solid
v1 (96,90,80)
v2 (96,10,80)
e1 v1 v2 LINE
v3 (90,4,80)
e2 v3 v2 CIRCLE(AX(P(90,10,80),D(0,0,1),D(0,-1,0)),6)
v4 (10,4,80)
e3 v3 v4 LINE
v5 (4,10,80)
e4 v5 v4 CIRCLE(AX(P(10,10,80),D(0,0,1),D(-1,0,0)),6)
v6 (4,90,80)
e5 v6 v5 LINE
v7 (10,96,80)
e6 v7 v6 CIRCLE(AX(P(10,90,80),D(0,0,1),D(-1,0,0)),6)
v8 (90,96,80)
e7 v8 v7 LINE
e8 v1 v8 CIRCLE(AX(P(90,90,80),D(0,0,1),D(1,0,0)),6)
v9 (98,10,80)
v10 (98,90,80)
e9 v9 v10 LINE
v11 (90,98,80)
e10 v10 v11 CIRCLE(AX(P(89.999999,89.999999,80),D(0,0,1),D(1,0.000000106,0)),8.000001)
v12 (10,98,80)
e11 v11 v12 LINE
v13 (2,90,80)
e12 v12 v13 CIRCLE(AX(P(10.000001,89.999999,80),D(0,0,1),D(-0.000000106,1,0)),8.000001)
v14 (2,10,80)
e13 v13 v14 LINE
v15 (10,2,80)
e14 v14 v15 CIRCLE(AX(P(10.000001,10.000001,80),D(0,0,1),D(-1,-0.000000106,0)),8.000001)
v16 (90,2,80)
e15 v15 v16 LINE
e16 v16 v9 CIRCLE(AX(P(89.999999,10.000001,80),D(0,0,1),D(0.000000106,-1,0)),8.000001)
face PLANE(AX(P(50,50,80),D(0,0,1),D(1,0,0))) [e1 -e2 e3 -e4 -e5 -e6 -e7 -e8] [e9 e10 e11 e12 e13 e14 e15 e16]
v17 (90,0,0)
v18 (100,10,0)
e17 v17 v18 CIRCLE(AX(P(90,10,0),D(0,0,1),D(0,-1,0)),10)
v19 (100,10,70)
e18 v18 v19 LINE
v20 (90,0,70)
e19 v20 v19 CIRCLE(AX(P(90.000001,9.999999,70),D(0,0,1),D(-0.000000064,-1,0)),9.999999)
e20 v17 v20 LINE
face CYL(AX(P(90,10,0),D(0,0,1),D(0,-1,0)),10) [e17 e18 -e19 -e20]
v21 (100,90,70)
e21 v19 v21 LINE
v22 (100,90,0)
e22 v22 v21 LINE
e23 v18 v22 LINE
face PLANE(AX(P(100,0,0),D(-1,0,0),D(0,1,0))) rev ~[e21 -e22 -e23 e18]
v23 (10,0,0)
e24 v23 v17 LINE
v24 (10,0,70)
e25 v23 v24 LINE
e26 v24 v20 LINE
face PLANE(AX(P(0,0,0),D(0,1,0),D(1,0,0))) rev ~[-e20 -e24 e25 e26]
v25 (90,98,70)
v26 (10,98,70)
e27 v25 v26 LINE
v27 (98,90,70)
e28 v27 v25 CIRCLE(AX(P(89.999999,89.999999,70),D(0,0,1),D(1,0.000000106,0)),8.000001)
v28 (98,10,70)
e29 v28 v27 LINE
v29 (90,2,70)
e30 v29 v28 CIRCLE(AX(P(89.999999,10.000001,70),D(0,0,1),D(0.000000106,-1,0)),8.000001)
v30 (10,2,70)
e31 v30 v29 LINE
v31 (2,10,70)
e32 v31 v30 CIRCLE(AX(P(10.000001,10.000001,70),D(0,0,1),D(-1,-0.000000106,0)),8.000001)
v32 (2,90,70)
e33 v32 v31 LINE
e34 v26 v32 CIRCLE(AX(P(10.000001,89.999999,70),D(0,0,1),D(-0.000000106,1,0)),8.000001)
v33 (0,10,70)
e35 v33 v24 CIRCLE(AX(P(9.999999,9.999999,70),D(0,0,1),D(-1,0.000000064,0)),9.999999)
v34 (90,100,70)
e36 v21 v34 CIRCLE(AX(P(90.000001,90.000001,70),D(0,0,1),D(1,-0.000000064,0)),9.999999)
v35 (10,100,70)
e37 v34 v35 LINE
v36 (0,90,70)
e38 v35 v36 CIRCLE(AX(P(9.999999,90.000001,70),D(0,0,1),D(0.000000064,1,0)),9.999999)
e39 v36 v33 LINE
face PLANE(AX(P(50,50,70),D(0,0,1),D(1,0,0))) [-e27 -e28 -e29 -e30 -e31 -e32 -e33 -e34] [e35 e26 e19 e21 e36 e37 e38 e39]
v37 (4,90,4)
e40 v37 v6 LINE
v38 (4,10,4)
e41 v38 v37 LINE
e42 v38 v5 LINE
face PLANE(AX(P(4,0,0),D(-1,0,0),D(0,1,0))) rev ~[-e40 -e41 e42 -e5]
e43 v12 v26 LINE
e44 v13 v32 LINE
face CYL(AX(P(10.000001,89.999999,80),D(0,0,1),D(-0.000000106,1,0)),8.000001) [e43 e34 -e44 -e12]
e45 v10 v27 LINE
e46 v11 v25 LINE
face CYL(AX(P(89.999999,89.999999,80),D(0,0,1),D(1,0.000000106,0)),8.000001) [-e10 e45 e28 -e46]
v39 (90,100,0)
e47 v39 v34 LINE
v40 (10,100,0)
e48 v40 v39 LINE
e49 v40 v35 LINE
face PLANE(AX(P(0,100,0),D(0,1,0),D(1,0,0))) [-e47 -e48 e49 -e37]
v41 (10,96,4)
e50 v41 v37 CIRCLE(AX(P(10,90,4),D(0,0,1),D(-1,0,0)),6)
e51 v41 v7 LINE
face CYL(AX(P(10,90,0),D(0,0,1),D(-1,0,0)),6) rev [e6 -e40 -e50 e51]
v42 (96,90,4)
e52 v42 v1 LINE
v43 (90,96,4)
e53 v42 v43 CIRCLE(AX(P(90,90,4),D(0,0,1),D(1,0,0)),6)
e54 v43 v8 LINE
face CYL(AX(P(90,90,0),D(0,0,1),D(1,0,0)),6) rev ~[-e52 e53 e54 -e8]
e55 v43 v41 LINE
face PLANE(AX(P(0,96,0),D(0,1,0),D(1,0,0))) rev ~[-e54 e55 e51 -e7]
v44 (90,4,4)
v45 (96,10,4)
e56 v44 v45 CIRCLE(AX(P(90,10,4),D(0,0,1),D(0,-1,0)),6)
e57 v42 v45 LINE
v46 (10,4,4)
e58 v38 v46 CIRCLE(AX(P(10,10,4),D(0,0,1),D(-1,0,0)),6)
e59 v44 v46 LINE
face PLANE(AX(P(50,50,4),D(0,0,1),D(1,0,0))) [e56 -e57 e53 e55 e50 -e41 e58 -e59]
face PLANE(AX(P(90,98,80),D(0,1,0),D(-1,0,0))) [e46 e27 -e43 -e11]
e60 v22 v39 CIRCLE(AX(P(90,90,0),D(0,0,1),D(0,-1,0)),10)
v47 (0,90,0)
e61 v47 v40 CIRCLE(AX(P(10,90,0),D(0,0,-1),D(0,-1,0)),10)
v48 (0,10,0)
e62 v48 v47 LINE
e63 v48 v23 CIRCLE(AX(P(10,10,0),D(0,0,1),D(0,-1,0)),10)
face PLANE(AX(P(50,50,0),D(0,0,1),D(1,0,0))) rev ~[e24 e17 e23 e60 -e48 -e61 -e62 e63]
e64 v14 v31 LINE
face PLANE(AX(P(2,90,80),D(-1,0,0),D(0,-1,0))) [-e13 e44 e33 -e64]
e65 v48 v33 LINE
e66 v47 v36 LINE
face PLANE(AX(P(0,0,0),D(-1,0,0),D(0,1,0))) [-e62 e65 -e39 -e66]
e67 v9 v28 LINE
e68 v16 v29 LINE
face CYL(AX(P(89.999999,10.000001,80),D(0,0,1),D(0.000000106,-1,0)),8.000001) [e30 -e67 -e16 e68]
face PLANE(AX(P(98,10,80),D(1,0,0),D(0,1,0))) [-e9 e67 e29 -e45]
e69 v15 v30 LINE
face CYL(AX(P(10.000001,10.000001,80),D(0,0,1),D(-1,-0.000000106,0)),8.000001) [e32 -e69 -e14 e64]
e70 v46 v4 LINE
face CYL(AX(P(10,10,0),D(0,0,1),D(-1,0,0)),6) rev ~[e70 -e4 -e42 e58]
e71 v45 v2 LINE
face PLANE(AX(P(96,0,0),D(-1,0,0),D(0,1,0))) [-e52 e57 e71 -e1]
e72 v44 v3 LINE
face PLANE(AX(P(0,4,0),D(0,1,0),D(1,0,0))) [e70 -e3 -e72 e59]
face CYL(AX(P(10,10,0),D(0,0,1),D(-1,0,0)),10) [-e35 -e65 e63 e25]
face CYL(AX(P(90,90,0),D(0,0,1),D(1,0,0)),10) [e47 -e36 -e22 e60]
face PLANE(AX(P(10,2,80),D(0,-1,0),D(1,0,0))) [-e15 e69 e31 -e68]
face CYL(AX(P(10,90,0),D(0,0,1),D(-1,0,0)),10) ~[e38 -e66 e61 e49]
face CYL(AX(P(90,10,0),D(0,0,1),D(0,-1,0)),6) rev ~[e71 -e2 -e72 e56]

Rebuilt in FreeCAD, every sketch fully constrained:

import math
import FreeCAD as App
import Part
import Sketcher
from FreeCAD import Vector


def edges_at(feature, points):
    """Names of the edges that pass closest to the given points."""
    edges = feature.Shape.Edges
    near = lambda p: min(range(len(edges)), key=lambda i: edges[i].distToShape(Part.Vertex(*p))[0])
    return sorted({f"Edge{near(p) + 1}" for p in points})


def faces_at(feature, points):
    """Names of the faces that lie closest to the given points."""
    faces = feature.Shape.Faces
    near = lambda p: min(range(len(faces)), key=lambda i: faces[i].distToShape(Part.Vertex(*p))[0])
    return sorted({f"Face{near(p) + 1}" for p in points})


def add_polygon(sketch, points):
    """Adds a closed chain of lines whose ends are joined by coincident constraints."""
    first, n = sketch.GeometryCount, len(points)
    for a, b in zip(points, points[1:] + points[:1]):
        sketch.addGeometry(Part.LineSegment(App.Vector(*a, 0), App.Vector(*b, 0)), False)
    for i in range(n):
        sketch.addConstraint(Sketcher.Constraint("Coincident", first + i, 2, first + (i + 1) % n, 1))

doc = App.newDocument("Part")
params = doc.addObject("Spreadsheet::Sheet", "Params")
for row, (alias, value) in enumerate([
    ("sketch1_width", "100 mm"),
    ("pad1_length", "80 mm"),
    ("fillet_radius", "10 mm"),
    ("thickness_wall", "4 mm"),
    ("sketch2_radius", "9.999999 mm"),
    ("sketch2_radius2", "8.000001 mm"),
    ("sketch2_width", "80 mm"),
    ("pocket1_length", "10 mm"),
], start=1):
    params.set(f"A{row}", alias)
    params.set(f"B{row}", "=" + value)
    params.setAlias(f"B{row}", alias)

body = doc.addObject("PartDesign::Body", "Body")

sketch1 = doc.addObject("Sketcher::SketchObject", "Sketch")
body.addObject(sketch1)
sketch1.AttachmentSupport = (doc.XY_Plane, [""])
sketch1.MapMode = "FlatFace"
add_polygon(sketch1, [(0, 100), (0, 0), (100, 0), (100, 100)])
sketch1.addConstraint([
    Sketcher.Constraint("Vertical", 0),
    Sketcher.Constraint("Horizontal", 1),
    Sketcher.Constraint("Vertical", 2),
    Sketcher.Constraint("Horizontal", 3),
    Sketcher.Constraint("Coincident", 0, 2, -1, 1),
    Sketcher.Constraint("Equal", 3, 0),
    Sketcher.Constraint("DistanceX", 1, 1, 1, 2, 100.0),
])
sketch1.setExpression("Constraints[10]", "Params.sketch1_width")
pad1 = doc.addObject("PartDesign::Pad", "Pad")
body.addObject(pad1)
pad1.Profile = sketch1
pad1.setExpression("Length", "Params.pad1_length")
doc.recompute()

fillet = doc.addObject("PartDesign::Fillet", "Fillet")
body.addObject(fillet)
fillet.Base = (pad1, edges_at(pad1, [
    (0, 0, 40),
    (100, 0, 40),
    (100, 100, 40),
    (0, 100, 40),
]))
fillet.setExpression("Radius", "Params.fillet_radius")
doc.recompute()

thickness = doc.addObject("PartDesign::Thickness", "Thickness")
body.addObject(thickness)
thickness.Base = (fillet, faces_at(fillet, [(50, 50, 80)]))
thickness.setExpression("Value", "Params.thickness_wall")
thickness.Reversed = True
thickness.Join = "Intersection"

sketch2 = doc.addObject("Sketcher::SketchObject", "Sketch001")
body.addObject(sketch2)
sketch2.AttachmentSupport = (doc.XY_Plane, [""])
sketch2.MapMode = "FlatFace"
sketch2.AttachmentOffset = App.Placement(Vector(0, 0, 80), App.Rotation())
sketch2.addGeometry([
    Part.LineSegment(Vector(0, 90, 0), Vector(0, 10, 0)),
    Part.ArcOfCircle(Part.Circle(Vector(10, 10, 0), Vector(0, 0, 1), 10), math.radians(180), math.radians(270)),
    Part.LineSegment(Vector(10, 0, 0), Vector(90, 0, 0)),
    Part.ArcOfCircle(Part.Circle(Vector(90, 10, 0), Vector(0, 0, 1), 10), math.radians(-90), math.radians(0)),
    Part.LineSegment(Vector(100, 10, 0), Vector(100, 90, 0)),
    Part.ArcOfCircle(Part.Circle(Vector(90, 90, 0), Vector(0, 0, 1), 10), math.radians(0), math.radians(90)),
    Part.LineSegment(Vector(90, 100, 0), Vector(10, 100, 0)),
    Part.ArcOfCircle(Part.Circle(Vector(10, 90, 0), Vector(0, 0, 1), 10), math.radians(90), math.radians(180)),
    Part.LineSegment(Vector(2, 10, 0), Vector(2, 90, 0)),
    Part.ArcOfCircle(Part.Circle(Vector(10, 90, 0), Vector(0, 0, 1), 8), math.radians(90), math.radians(180)),
    Part.LineSegment(Vector(10, 98, 0), Vector(90, 98, 0)),
    Part.ArcOfCircle(Part.Circle(Vector(90, 90, 0), Vector(0, 0, 1), 8), math.radians(0), math.radians(90)),
    Part.LineSegment(Vector(98, 90, 0), Vector(98, 10, 0)),
    Part.ArcOfCircle(Part.Circle(Vector(90, 10, 0), Vector(0, 0, 1), 8), math.radians(-90), math.radians(0)),
    Part.LineSegment(Vector(90, 2, 0), Vector(10, 2, 0)),
    Part.ArcOfCircle(Part.Circle(Vector(10, 10, 0), Vector(0, 0, 1), 8), math.radians(-180), math.radians(-90)),
], False)
sketch2.addConstraint([
    Sketcher.Constraint("Tangent", 0, 2, 1, 1),
    Sketcher.Constraint("Tangent", 1, 2, 2, 1),
    Sketcher.Constraint("Tangent", 2, 2, 3, 1),
    Sketcher.Constraint("Tangent", 3, 2, 4, 1),
    Sketcher.Constraint("Tangent", 4, 2, 5, 1),
    Sketcher.Constraint("Tangent", 5, 2, 6, 1),
    Sketcher.Constraint("Tangent", 6, 2, 7, 1),
    Sketcher.Constraint("Tangent", 7, 2, 0, 1),
    Sketcher.Constraint("Tangent", 8, 2, 9, 2),
    Sketcher.Constraint("Tangent", 9, 1, 10, 1),
    Sketcher.Constraint("Tangent", 10, 2, 11, 2),
    Sketcher.Constraint("Tangent", 11, 1, 12, 1),
    Sketcher.Constraint("Tangent", 12, 2, 13, 2),
    Sketcher.Constraint("Tangent", 13, 1, 14, 1),
    Sketcher.Constraint("Tangent", 14, 2, 15, 2),
    Sketcher.Constraint("Tangent", 15, 1, 8, 1),
    Sketcher.Constraint("Vertical", 0),
    Sketcher.Constraint("Horizontal", 2),
    Sketcher.Constraint("Vertical", 4),
    Sketcher.Constraint("Horizontal", 6),
    Sketcher.Constraint("Vertical", 8),
    Sketcher.Constraint("Horizontal", 10),
    Sketcher.Constraint("Vertical", 12),
    Sketcher.Constraint("Horizontal", 14),
    Sketcher.Constraint("Coincident", 9, 3, 7, 3),
    Sketcher.Constraint("Coincident", 11, 3, 5, 3),
    Sketcher.Constraint("Coincident", 13, 3, 3, 3),
    Sketcher.Constraint("Equal", 1, 3),
    Sketcher.Constraint("Equal", 3, 5),
    Sketcher.Constraint("Equal", 5, 7),
    Sketcher.Constraint("Equal", 13, 15),
    Sketcher.Constraint("PointOnObject", 0, 2, -2),
    Sketcher.Constraint("PointOnObject", 1, 2, -1),
    Sketcher.Constraint("Equal", 14, 0),
    Sketcher.Constraint("Radius", 1, 9.999999),
    Sketcher.Constraint("Radius", 9, 8.000001),
    Sketcher.Constraint("DistanceX", 2, 1, 2, 2, 80.0),
])
sketch2.setExpression("Constraints[34]", "Params.sketch2_radius")
sketch2.setExpression("Constraints[35]", "Params.sketch2_radius2")
sketch2.setExpression("Constraints[36]", "Params.sketch2_width")
pocket1 = doc.addObject("PartDesign::Pocket", "Pocket")
body.addObject(pocket1)
pocket1.Profile = sketch2
pocket1.setExpression("Length", "Params.pocket1_length")

doc.recompute()
